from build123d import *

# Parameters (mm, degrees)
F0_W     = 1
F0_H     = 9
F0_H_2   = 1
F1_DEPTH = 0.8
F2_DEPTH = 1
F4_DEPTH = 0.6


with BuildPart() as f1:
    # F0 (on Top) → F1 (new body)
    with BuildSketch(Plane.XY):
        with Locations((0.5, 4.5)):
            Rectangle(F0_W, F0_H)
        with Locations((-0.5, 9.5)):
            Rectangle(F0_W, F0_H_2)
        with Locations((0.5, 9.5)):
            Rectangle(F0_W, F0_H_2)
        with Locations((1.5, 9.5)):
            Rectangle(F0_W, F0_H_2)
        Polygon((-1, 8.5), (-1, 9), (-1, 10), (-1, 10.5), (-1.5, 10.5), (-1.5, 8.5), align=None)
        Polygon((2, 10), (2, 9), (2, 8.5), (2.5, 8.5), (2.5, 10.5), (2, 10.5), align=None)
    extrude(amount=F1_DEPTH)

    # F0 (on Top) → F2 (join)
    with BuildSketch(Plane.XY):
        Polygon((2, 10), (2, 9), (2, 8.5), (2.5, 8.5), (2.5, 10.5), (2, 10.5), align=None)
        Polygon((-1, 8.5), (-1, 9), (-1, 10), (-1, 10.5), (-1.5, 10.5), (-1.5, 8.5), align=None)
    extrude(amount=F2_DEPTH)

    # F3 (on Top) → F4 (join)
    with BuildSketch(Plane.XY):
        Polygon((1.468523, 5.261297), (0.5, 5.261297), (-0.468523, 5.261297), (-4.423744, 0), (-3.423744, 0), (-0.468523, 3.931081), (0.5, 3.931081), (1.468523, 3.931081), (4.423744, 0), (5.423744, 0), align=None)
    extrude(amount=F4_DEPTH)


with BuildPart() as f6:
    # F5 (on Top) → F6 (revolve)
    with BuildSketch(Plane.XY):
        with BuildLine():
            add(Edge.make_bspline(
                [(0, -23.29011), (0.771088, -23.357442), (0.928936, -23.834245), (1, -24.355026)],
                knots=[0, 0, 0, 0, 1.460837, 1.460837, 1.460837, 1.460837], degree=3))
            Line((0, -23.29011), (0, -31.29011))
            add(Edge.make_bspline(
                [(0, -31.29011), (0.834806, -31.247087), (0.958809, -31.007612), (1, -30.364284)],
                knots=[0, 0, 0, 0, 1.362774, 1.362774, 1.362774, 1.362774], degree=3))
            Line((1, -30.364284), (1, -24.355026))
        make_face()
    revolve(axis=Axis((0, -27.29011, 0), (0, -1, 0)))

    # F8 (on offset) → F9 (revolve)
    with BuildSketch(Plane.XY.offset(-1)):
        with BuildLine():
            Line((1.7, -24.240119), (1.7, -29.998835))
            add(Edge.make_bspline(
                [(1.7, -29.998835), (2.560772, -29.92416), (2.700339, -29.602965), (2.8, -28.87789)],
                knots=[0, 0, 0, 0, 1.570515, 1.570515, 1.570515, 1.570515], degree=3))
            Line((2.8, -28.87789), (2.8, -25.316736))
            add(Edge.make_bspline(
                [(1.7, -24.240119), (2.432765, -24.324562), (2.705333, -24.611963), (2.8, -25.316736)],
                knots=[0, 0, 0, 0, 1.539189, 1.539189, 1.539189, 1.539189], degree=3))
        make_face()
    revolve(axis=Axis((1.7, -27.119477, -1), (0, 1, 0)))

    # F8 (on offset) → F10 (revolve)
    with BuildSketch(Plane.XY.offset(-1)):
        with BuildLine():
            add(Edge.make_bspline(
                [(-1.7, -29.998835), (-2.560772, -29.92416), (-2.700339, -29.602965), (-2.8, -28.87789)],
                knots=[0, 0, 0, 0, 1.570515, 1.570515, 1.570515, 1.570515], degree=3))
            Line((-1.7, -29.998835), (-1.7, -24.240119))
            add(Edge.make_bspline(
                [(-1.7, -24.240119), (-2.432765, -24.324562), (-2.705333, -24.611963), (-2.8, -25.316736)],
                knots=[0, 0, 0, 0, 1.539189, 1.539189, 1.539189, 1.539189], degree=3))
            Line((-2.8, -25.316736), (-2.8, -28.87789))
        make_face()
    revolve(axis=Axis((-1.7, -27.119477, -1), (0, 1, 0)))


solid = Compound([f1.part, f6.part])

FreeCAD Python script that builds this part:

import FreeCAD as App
import Part
import Sketcher
from FreeCAD import Vector
Q = App.Units.Quantity


def add_polygon(sketch, points):
    """Adds a closed chain of lines whose ends are joined by coincident constraints."""
    first, n = sketch.GeometryCount, len(points)
    for a, b in zip(points, points[1:] + points[:1]):
        sketch.addGeometry(Part.LineSegment(App.Vector(*a, 0), App.Vector(*b, 0)), False)
    for i in range(n):
        sketch.addConstraint(Sketcher.Constraint("Coincident", first + i, 2, first + (i + 1) % n, 1))

doc = App.newDocument("Part")
params = doc.addObject("Spreadsheet::Sheet", "Params")
for row, (alias, value) in enumerate([
    ("sketch1_width", "1 mm"),
    ("sketch1_height", "9 mm"),
    ("sketch1_height2", "2 mm"),
    ("sketch1_width2", "0.5 mm"),
    ("pad1_length", "0.8 mm"),
    ("sketch2_height", "2 mm"),
    ("sketch2_width", "0.5 mm"),
    ("pad2_length", "1 mm"),
    ("sketch3_width", "1 mm"),
    ("pad3_length", "0.6 mm"),
    ("revolution_angle", "360 deg"),
    ("revolution2_angle", "360 deg"),
    ("revolution3_angle", "360 deg"),
], start=1):
    params.set(f"A{row}", alias)
    params.set(f"B{row}", "=" + value)
    params.setAlias(f"B{row}", alias)

body = doc.addObject("PartDesign::Body", "Body")

# Sketch on XY plane
sketch1 = body.newObject("Sketcher::SketchObject", "Sketch")
sketch1.AttachmentSupport = (doc.getObject("XY_Plane"), [""])
sketch1.MapMode = "FlatFace"
add_polygon(sketch1, [(0, 9), (0, 0), (1, 0), (1, 9), (2, 9), (2, 8.5), (2.5, 8.5), (2.5, 10.5), (2, 10.5), (2, 10), (-1, 10), (-1, 10.5), (-1.5, 10.5), (-1.5, 8.5), (-1, 8.5), (-1, 9)])  # lines 0-15
sketch1.addConstraint([
    Sketcher.Constraint("Vertical", 0),
    Sketcher.Constraint("Horizontal", 1),
    Sketcher.Constraint("Vertical", 2),
    Sketcher.Constraint("Horizontal", 3),
    Sketcher.Constraint("Vertical", 4),
    Sketcher.Constraint("Horizontal", 5),
    Sketcher.Constraint("Vertical", 6),
    Sketcher.Constraint("Horizontal", 7),
    Sketcher.Constraint("Vertical", 8),
    Sketcher.Constraint("Horizontal", 9),
    Sketcher.Constraint("Vertical", 10),
    Sketcher.Constraint("Horizontal", 11),
    Sketcher.Constraint("Vertical", 12),
    Sketcher.Constraint("Horizontal", 13),
    Sketcher.Constraint("Vertical", 14),
    Sketcher.Constraint("Horizontal", 15),
    Sketcher.Constraint("Coincident", 0, 2, -1, 1),
    Sketcher.Constraint("Symmetric", 2, 2, 14, 2, -2),
    Sketcher.Constraint("Horizontal", 7, 2, 10, 2),
    Sketcher.Constraint("Horizontal", 5, 2, 12, 2),
    Sketcher.Constraint("Vertical", 4, 2, 7, 2),
    Sketcher.Constraint("Vertical", 10, 2, 13, 2),
    Sketcher.Constraint("Equal", 1, 3),
    Sketcher.Constraint("Equal", 7, 11),
    Sketcher.Constraint("Equal", 13, 4),
    Sketcher.Constraint("Equal", 4, 8),
    Sketcher.Constraint("DistanceX", 1, 1, 1, 2, Q("1 mm")),
    Sketcher.Constraint("DistanceY", 0, 2, 0, 1, Q("9 mm")),
    Sketcher.Constraint("DistanceY", 6, 1, 6, 2, Q("2 mm")),
    Sketcher.Constraint("DistanceX", 5, 1, 5, 2, Q("0.5 mm")),
])
sketch1.setExpression("Constraints[42]", "Params.sketch1_width")
sketch1.setExpression("Constraints[43]", "Params.sketch1_height")
sketch1.setExpression("Constraints[44]", "Params.sketch1_height2")
sketch1.setExpression("Constraints[45]", "Params.sketch1_width2")
pad1 = body.newObject("PartDesign::Pad", "Pad")
pad1.Profile = sketch1
pad1.setExpression("Length", "Params.pad1_length")

# Sketch on XY plane
sketch2 = body.newObject("Sketcher::SketchObject", "Sketch001")
sketch2.AttachmentSupport = (doc.getObject("XY_Plane"), [""])
sketch2.MapMode = "FlatFace"
add_polygon(sketch2, [(2, 8.5), (2.5, 8.5), (2.5, 10.5), (2, 10.5)])  # lines 0-3
add_polygon(sketch2, [(-1, 8.5), (-1, 10.5), (-1.5, 10.5), (-1.5, 8.5)])  # lines 4-7
sketch2.addConstraint([
    Sketcher.Constraint("Horizontal", 0),
    Sketcher.Constraint("Vertical", 1),
    Sketcher.Constraint("Horizontal", 2),
    Sketcher.Constraint("Vertical", 3),
    Sketcher.Constraint("Vertical", 4),
    Sketcher.Constraint("Horizontal", 5),
    Sketcher.Constraint("Vertical", 6),
    Sketcher.Constraint("Horizontal", 7),
    Sketcher.Constraint("Horizontal", 2, 2, 4, 2),
    Sketcher.Constraint("Horizontal", 3, 2, 6, 2),
    Sketcher.Constraint("Equal", 2, 5),
    Sketcher.Constraint("DistanceY", 1, 1, 1, 2, Q("2 mm")),
    Sketcher.Constraint("DistanceX", 0, 1, 0, 2, Q("0.5 mm")),
    Sketcher.Constraint("DistanceX", -1, 1, 2, 2, Q("2 mm")),
    Sketcher.Constraint("DistanceX", 4, 2, -1, 1, Q("1 mm")),
    Sketcher.Constraint("DistanceY", -1, 1, 0, 2, Q("8.5 mm")),
])
sketch2.setExpression("Constraints[19]", "Params.sketch2_height")
sketch2.setExpression("Constraints[20]", "Params.sketch2_width")
pad2 = body.newObject("PartDesign::Pad", "Pad001")
pad2.Profile = sketch2
pad2.setExpression("Length", "Params.pad2_length")

# Sketch on XY plane
sketch3 = body.newObject("Sketcher::SketchObject", "Sketch002")
sketch3.AttachmentSupport = (doc.getObject("XY_Plane"), [""])
sketch3.MapMode = "FlatFace"
add_polygon(sketch3, [(1.5, 5.3), (-0.5, 5.3), (-4.4, 0), (-3.4, 0), (-0.5, 3.9), (1.5, 3.9), (4.4, 0), (5.4, 0)])  # lines 0-7
sketch3.addConstraint([
    Sketcher.Constraint("Horizontal", 0),
    Sketcher.Constraint("Horizontal", 2),
    Sketcher.Constraint("Horizontal", 4),
    Sketcher.Constraint("Horizontal", 6),
    Sketcher.Constraint("Symmetric", 1, 2, 5, 2, -1, 1),
    Sketcher.Constraint("PointOnObject", 1, 2, -1),
    Sketcher.Constraint("Parallel", 1, 3),
    Sketcher.Constraint("Parallel", 5, 7),
    Sketcher.Constraint("Vertical", 0, 2, 3, 2),
    Sketcher.Constraint("Vertical", 4, 2, 7, 2),
    Sketcher.Constraint("Equal", 2, 6),
    Sketcher.Constraint("DistanceX", 2, 1, 2, 2, Q("1 mm")),
    Sketcher.Constraint("Distance", 3, Q("4.918001 mm")),
    Sketcher.Constraint("DistanceX", 0, 2, 0, 1, Q("1.937046 mm")),
    Sketcher.Constraint("DistanceY", -1, 1, 3, 2, Q("3.931081 mm")),
])
sketch3.setExpression("Constraints[19]", "Params.sketch3_width")
pad3 = body.newObject("PartDesign::Pad", "Pad002")
pad3.Profile = sketch3
pad3.setExpression("Length", "Params.pad3_length")
body2 = doc.addObject("PartDesign::Body", "Body001")

# Sketch on XY plane
sketch4 = body2.newObject("Sketcher::SketchObject", "Sketch003")
sketch4.AttachmentSupport = (doc.getObject("XY_Plane001"), [""])
sketch4.MapMode = "FlatFace"
sketch4.addGeometry([
    Part.BSplineCurve([Vector(0, -23.29011, 0), Vector(0.771088, -23.357442, 0), Vector(0.928936, -23.834245, 0), Vector(1, -24.355026, 0)], [4, 4], [0, 1.460837], False, 3, [1, 1, 1, 1], False),
    Part.LineSegment(Vector(0, -23.29011, 0), Vector(0, -31.29011, 0)),
    Part.BSplineCurve([Vector(0, -31.29011, 0), Vector(0.834806, -31.247087, 0), Vector(0.958809, -31.007612, 0), Vector(1, -30.364284, 0)], [4, 4], [0, 1.362774], False, 3, [1, 1, 1, 1], False),
    Part.LineSegment(Vector(1, -30.364284, 0), Vector(1, -24.355026, 0)),
], False)
sketch4.addConstraint([
    Sketcher.Constraint("Block", 0),
    Sketcher.Constraint("Block", 2),
    Sketcher.Constraint("Coincident", 0, 1, 1, 1),
    Sketcher.Constraint("Coincident", 1, 2, 2, 1),
    Sketcher.Constraint("Coincident", 2, 2, 3, 1),
    Sketcher.Constraint("Coincident", 3, 2, 0, 2),
])
revolution = body2.newObject("PartDesign::Revolution", "Revolution")
revolution.Profile = sketch4
revolution.ReferenceAxis = (sketch4, ["V_Axis"])
revolution.setExpression("Angle", "Params.revolution_angle")

# Sketch on XY plane
sketch5 = body2.newObject("Sketcher::SketchObject", "Sketch004")
sketch5.AttachmentSupport = (doc.getObject("XY_Plane001"), [""])
sketch5.MapMode = "FlatFace"
sketch5.AttachmentOffset = App.Placement(Vector(0, 0, -1), App.Rotation())
sketch5.addGeometry([
    Part.LineSegment(Vector(1.7, -24.240119, 0), Vector(1.7, -29.998835, 0)),
    Part.BSplineCurve([Vector(1.7, -29.998835, 0), Vector(2.560772, -29.92416, 0), Vector(2.700339, -29.602965, 0), Vector(2.8, -28.87789, 0)], [4, 4], [0, 1.570515], False, 3, [1, 1, 1, 1], False),
    Part.LineSegment(Vector(2.8, -28.87789, 0), Vector(2.8, -25.316736, 0)),
    Part.BSplineCurve([Vector(1.7, -24.240119, 0), Vector(2.432765, -24.324562, 0), Vector(2.705333, -24.611963, 0), Vector(2.8, -25.316736, 0)], [4, 4], [0, 1.539189], False, 3, [1, 1, 1, 1], False),
], False)
sketch5.addGeometry(Part.LineSegment(Vector(1.7, -29.998835, 0), Vector(1.7, -24.240119, 0)), True)  # axis
sketch5.addConstraint([
    Sketcher.Constraint("Block", 1),
    Sketcher.Constraint("Block", 3),
    Sketcher.Constraint("Coincident", 0, 2, 1, 1),
    Sketcher.Constraint("Coincident", 1, 2, 2, 1),
    Sketcher.Constraint("Coincident", 2, 2, 3, 2),
    Sketcher.Constraint("Coincident", 3, 1, 0, 1),
    Sketcher.Constraint("Vertical", 4),
    Sketcher.Constraint("Coincident", 4, 1, 0, 2),
    Sketcher.Constraint("Equal", 0, 4),
])
revolution2 = body2.newObject("PartDesign::Revolution", "Revolution001")
revolution2.Profile = sketch5
revolution2.ReferenceAxis = (sketch5, ["Axis0"])
revolution2.setExpression("Angle", "Params.revolution2_angle")

# Sketch on XY plane
sketch6 = body2.newObject("Sketcher::SketchObject", "Sketch005")
sketch6.AttachmentSupport = (doc.getObject("XY_Plane001"), [""])
sketch6.MapMode = "FlatFace"
sketch6.AttachmentOffset = App.Placement(Vector(0, 0, -1), App.Rotation())
sketch6.addGeometry([
    Part.BSplineCurve([Vector(-1.7, -29.998835, 0), Vector(-2.560772, -29.92416, 0), Vector(-2.700339, -29.602965, 0), Vector(-2.8, -28.87789, 0)], [4, 4], [0, 1.570515], False, 3, [1, 1, 1, 1], False),
    Part.LineSegment(Vector(-1.7, -29.998835, 0), Vector(-1.7, -24.240119, 0)),
    Part.BSplineCurve([Vector(-1.7, -24.240119, 0), Vector(-2.432765, -24.324562, 0), Vector(-2.705333, -24.611963, 0), Vector(-2.8, -25.316736, 0)], [4, 4], [0, 1.539189], False, 3, [1, 1, 1, 1], False),
    Part.LineSegment(Vector(-2.8, -25.316736, 0), Vector(-2.8, -28.87789, 0)),
], False)
sketch6.addGeometry(Part.LineSegment(Vector(-1.7, -29.998835, 0), Vector(-1.7, -24.240119, 0)), True)  # axis
sketch6.addConstraint([
    Sketcher.Constraint("Block", 0),
    Sketcher.Constraint("Block", 2),
    Sketcher.Constraint("Coincident", 0, 1, 1, 1),
    Sketcher.Constraint("Coincident", 1, 2, 2, 1),
    Sketcher.Constraint("Coincident", 2, 2, 3, 1),
    Sketcher.Constraint("Coincident", 3, 2, 0, 2),
    Sketcher.Constraint("Vertical", 4),
    Sketcher.Constraint("Coincident", 4, 2, 1, 2),
    Sketcher.Constraint("Equal", 1, 4),
])
revolution3 = body2.newObject("PartDesign::Revolution", "Revolution002")
revolution3.Profile = sketch6
revolution3.ReferenceAxis = (sketch6, ["Axis0"])
revolution3.setExpression("Angle", "Params.revolution3_angle")

doc.recompute()
